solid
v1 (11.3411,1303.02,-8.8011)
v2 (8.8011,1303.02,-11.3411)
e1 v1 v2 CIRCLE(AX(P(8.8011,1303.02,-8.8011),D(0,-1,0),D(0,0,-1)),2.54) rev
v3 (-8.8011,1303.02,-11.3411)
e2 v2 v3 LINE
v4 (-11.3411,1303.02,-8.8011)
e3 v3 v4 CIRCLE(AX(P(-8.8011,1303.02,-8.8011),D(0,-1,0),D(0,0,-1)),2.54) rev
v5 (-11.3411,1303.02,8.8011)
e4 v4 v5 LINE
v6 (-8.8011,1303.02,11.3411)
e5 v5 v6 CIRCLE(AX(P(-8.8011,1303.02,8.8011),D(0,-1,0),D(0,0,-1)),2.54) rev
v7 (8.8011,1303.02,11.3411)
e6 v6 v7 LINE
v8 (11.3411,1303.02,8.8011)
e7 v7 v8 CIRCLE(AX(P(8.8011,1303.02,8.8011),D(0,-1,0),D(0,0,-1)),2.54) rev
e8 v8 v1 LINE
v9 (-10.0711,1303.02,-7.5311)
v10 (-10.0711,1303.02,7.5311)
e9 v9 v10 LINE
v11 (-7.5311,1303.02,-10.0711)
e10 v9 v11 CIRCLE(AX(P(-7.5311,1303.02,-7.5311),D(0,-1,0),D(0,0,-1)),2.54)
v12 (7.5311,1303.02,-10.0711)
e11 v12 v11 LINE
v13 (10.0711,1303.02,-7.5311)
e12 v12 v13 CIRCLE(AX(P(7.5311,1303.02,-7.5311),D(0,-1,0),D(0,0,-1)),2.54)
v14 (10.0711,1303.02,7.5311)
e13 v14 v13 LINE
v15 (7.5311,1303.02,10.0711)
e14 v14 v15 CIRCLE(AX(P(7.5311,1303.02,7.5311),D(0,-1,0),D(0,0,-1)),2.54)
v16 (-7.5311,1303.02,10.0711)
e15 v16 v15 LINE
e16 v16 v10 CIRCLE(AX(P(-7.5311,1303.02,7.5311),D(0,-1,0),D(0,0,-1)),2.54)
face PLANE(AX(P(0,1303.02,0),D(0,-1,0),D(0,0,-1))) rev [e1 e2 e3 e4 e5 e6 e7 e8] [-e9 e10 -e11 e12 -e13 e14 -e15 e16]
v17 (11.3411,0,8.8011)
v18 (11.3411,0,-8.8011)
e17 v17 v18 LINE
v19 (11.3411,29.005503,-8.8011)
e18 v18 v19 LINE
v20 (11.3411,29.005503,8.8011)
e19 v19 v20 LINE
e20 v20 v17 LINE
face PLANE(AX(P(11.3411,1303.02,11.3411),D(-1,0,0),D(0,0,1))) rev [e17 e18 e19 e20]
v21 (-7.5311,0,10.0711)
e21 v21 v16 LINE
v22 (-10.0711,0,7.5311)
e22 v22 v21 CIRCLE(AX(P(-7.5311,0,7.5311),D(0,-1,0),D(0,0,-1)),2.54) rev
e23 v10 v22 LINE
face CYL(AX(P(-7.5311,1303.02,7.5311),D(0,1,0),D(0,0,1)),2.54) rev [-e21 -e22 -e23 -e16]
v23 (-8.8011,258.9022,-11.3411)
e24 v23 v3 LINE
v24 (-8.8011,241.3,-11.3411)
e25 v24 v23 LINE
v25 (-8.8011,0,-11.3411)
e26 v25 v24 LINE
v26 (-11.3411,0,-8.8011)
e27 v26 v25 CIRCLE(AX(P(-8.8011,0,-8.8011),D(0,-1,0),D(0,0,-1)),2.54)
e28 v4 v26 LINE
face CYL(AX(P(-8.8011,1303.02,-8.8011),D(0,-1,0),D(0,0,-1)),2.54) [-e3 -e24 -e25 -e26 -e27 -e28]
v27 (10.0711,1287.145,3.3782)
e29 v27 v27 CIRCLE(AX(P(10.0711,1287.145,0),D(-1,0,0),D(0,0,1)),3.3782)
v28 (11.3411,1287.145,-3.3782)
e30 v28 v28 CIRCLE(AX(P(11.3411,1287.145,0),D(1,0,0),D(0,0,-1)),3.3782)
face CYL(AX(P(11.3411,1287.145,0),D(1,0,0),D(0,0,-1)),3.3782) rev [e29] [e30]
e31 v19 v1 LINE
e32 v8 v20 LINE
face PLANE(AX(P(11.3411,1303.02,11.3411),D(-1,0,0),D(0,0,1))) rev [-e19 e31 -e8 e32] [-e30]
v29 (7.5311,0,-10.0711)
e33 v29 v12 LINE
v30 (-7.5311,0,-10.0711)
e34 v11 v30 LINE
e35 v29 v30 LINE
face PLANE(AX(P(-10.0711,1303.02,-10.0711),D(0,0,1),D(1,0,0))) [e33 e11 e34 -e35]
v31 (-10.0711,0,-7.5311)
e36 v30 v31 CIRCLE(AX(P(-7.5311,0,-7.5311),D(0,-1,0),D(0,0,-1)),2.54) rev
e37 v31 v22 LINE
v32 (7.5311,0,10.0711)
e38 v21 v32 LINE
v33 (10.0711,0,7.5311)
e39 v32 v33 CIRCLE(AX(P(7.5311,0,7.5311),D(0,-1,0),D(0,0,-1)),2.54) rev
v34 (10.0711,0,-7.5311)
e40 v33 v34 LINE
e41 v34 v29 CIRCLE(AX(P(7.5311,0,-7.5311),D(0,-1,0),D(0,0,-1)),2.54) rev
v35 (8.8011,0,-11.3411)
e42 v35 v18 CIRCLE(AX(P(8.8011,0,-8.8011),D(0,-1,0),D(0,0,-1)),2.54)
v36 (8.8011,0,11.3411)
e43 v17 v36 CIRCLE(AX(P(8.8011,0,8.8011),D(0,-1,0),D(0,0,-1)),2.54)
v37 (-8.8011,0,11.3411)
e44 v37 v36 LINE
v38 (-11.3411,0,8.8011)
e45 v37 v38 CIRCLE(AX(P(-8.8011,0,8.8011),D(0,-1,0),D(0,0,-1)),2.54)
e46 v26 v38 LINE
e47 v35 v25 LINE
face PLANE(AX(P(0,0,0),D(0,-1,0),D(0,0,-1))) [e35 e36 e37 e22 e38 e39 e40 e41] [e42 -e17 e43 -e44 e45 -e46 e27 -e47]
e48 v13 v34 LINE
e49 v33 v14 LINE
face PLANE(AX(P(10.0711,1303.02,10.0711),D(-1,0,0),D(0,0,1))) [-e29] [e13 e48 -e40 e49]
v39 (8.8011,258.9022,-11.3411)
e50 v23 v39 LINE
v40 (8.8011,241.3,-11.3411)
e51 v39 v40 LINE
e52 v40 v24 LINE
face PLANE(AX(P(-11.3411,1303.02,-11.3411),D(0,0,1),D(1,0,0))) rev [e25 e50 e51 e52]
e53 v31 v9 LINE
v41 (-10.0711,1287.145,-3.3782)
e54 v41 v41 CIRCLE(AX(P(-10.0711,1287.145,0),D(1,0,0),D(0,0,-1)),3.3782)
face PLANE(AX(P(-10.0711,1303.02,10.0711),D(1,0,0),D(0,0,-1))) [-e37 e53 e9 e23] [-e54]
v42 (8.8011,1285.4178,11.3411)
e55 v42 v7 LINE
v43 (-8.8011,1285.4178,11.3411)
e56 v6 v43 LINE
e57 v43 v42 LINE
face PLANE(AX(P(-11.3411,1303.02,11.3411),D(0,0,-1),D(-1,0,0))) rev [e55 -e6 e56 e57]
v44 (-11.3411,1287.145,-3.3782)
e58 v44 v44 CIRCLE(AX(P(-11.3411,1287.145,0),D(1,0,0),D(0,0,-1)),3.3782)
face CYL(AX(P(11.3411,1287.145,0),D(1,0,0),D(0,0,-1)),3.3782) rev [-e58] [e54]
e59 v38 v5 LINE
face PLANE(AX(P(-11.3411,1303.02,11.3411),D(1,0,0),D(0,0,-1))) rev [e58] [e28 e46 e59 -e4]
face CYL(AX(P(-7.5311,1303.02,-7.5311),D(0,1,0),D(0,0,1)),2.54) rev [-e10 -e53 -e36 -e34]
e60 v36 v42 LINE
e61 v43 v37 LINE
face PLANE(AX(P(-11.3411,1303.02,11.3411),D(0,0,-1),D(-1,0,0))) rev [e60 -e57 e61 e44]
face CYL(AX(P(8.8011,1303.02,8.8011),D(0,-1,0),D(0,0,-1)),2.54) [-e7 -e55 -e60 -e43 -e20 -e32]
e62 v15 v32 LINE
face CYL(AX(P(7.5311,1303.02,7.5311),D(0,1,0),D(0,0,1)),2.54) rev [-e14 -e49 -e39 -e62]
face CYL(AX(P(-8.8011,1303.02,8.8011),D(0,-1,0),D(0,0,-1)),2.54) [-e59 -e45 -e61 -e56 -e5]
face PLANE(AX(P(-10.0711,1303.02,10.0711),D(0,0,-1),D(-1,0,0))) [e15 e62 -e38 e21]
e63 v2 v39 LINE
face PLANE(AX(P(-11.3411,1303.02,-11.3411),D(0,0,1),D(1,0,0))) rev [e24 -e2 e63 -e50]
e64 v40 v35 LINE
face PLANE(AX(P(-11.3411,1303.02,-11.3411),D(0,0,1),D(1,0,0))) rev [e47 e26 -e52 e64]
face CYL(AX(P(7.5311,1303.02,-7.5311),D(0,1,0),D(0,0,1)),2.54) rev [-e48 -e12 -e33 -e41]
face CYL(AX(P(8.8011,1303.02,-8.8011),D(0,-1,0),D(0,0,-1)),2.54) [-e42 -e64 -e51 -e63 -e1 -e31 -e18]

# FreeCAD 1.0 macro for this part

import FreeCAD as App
import Part
import Sketcher
from FreeCAD import Vector
Q = App.Units.Quantity


def edges_at(feature, points):
    """Names of the edges that pass closest to the given points."""
    edges = feature.Shape.Edges
    near = lambda p: min(range(len(edges)), key=lambda i: edges[i].distToShape(Part.Vertex(*p))[0])
    return sorted({f"Edge{near(p) + 1}" for p in points})

doc = App.newDocument("Part")
params = doc.addObject("Spreadsheet::Sheet", "Params")
for row, (alias, value) in enumerate([
    ("sketch1_width", "0.893 in"),
    ("sketch1_width2", "0.793 in"),
    ("pad1_length", "51.3 in"),
    ("fillet_radius", "0.1 in"),
    ("sketch2_diameter", "0.266 in"),
    ("hole_diameter", "0.266 in"),
], start=1):
    params.set(f"A{row}", alias)
    params.set(f"B{row}", "=" + value)
    params.setAlias(f"B{row}", alias)

body = doc.addObject("PartDesign::Body", "Body")

# Sketch on XZ plane
sketch1 = body.newObject("Sketcher::SketchObject", "Sketch")
sketch1.AttachmentSupport = (doc.getObject("XZ_Plane"), [""])
sketch1.MapMode = "FlatFace"
sketch1.addGeometry([
    Part.LineSegment(Vector(-11, -11, 0), Vector(-11, 11, 0)),  # 0
    Part.LineSegment(Vector(-11, 11, 0), Vector(11, 11, 0)),  # 1
    Part.LineSegment(Vector(11, 11, 0), Vector(11, -11, 0)),  # 2
    Part.LineSegment(Vector(11, -11, 0), Vector(-11, -11, 0)),  # 3
    Part.LineSegment(Vector(10, 10, 0), Vector(-10, 10, 0)),  # 4
    Part.LineSegment(Vector(-10, 10, 0), Vector(-10, -10, 0)),  # 5
    Part.LineSegment(Vector(-10, -10, 0), Vector(10, -10, 0)),  # 6
    Part.LineSegment(Vector(10, -10, 0), Vector(10, 10, 0)),  # 7
], False)
sketch1.addConstraint([
    Sketcher.Constraint("Coincident", 0, 2, 1, 1),
    Sketcher.Constraint("Coincident", 1, 2, 2, 1),
    Sketcher.Constraint("Coincident", 2, 2, 3, 1),
    Sketcher.Constraint("Coincident", 3, 2, 0, 1),
    Sketcher.Constraint("Coincident", 4, 2, 5, 1),
    Sketcher.Constraint("Coincident", 5, 2, 6, 1),
    Sketcher.Constraint("Coincident", 6, 2, 7, 1),
    Sketcher.Constraint("Coincident", 7, 2, 4, 1),
    Sketcher.Constraint("Vertical", 0),
    Sketcher.Constraint("Horizontal", 1),
    Sketcher.Constraint("Vertical", 2),
    Sketcher.Constraint("Horizontal", 3),
    Sketcher.Constraint("Horizontal", 4),
    Sketcher.Constraint("Vertical", 5),
    Sketcher.Constraint("Horizontal", 6),
    Sketcher.Constraint("Vertical", 7),
    Sketcher.Constraint("Symmetric", 0, 2, 2, 2, -1, 1),
    Sketcher.Constraint("Symmetric", 4, 2, 6, 2, -1, 1),
    Sketcher.Constraint("Equal", 3, 0),
    Sketcher.Constraint("Equal", 6, 5),
    Sketcher.Constraint("DistanceX", 1, 1, 1, 2, Q("0.893 in")),
    Sketcher.Constraint("DistanceX", 4, 2, 4, 1, Q("0.793 in")),
])
sketch1.setExpression("Constraints[20]", "Params.sketch1_width")
sketch1.setExpression("Constraints[21]", "Params.sketch1_width2")
pad1 = body.newObject("PartDesign::Pad", "Pad")
pad1.Profile = sketch1
pad1.setExpression("Length", "Params.pad1_length")
pad1.Reversed = True
doc.recompute()

fillet = body.newObject("PartDesign::Fillet", "Fillet")
fillet.Base = (pad1, edges_at(pad1, [
    (10.071, 651.51, 10.071),
    (10.071, 651.51, -10.071),
    (-10.071, 651.51, -10.071),
    (-10.071, 651.51, 10.071),
    (11.341, 651.51, 11.341),
    (-11.341, 651.51, 11.341),
    (-11.341, 651.51, -11.341),
    (11.341, 651.51, -11.341),
]))
fillet.setExpression("Radius", "Params.fillet_radius")

# Sketch on YZ plane
sketch2 = body.newObject("Sketcher::SketchObject", "Sketch001")
sketch2.AttachmentSupport = (doc.getObject("YZ_Plane"), [""])
sketch2.MapMode = "FlatFace"
sketch2.AttachmentOffset = App.Placement(Vector(0, 0, 0.4465 * 25.4), App.Rotation())
sketch2.addGeometry(Part.Circle(Vector(1287.1, 0, 0), Vector(0, 0, 1), 3.4), False)
sketch2.addConstraint([
    Sketcher.Constraint("PointOnObject", 0, 3, -1),
    Sketcher.Constraint("Diameter", 0, Q("0.266 in")),
    Sketcher.Constraint("DistanceX", -1, 1, 0, 3, Q("50.675 in")),
])
sketch2.setExpression("Constraints[1]", "Params.sketch2_diameter")
doc.recompute()
hole = body.newObject("PartDesign::Hole", "Hole")
hole.Profile = sketch2
hole.ThreadType = "None"
hole.setExpression("Diameter", "Params.hole_diameter")
hole.DepthType = "ThroughAll"

doc.recompute()
